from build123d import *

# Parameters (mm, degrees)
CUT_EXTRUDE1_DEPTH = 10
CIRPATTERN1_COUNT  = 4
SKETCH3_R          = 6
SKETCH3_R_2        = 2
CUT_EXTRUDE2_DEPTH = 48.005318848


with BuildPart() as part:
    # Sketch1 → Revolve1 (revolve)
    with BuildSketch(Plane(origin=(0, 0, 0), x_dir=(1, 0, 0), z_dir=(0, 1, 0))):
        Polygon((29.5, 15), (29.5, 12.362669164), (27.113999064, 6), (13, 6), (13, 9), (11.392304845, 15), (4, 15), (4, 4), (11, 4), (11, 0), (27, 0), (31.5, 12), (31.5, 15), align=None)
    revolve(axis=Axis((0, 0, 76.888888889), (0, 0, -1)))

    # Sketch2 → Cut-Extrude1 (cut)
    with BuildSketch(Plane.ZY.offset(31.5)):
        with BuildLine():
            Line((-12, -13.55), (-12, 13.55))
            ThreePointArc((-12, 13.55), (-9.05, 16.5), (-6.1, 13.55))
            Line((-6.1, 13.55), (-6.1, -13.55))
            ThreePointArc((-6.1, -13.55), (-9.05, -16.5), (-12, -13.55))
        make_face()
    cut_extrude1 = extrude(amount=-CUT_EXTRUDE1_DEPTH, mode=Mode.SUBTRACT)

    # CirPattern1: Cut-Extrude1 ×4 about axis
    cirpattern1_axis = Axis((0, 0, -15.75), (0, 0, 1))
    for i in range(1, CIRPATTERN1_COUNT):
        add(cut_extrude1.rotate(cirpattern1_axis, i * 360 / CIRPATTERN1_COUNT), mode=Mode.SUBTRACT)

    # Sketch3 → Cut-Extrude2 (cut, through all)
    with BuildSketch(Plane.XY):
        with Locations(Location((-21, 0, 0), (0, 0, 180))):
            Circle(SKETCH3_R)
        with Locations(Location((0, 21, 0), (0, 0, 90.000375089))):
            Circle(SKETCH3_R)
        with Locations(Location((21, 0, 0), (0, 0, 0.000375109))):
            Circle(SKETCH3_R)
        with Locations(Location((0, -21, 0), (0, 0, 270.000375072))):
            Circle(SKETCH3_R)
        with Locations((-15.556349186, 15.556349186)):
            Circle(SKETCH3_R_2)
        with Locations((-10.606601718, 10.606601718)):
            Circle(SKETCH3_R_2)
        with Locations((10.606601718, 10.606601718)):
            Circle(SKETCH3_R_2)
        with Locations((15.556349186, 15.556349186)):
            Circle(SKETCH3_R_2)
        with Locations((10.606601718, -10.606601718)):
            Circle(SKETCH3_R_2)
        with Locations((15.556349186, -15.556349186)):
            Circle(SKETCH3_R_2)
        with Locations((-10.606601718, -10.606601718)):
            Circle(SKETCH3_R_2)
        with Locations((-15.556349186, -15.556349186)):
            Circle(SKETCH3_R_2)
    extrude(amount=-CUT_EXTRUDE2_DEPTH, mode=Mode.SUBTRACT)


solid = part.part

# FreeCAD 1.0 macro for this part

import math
import FreeCAD as App
import Part
import Sketcher
Q = App.Units.Quantity


def add_polygon(sketch, points):
    """Adds a closed chain of lines whose ends are joined by coincident constraints."""
    first, n = sketch.GeometryCount, len(points)
    for a, b in zip(points, points[1:] + points[:1]):
        sketch.addGeometry(Part.LineSegment(App.Vector(*a, 0), App.Vector(*b, 0)), False)
    for i in range(n):
        sketch.addConstraint(Sketcher.Constraint("Coincident", first + i, 2, first + (i + 1) % n, 1))

doc = App.newDocument("Part")
params = doc.addObject("Spreadsheet::Sheet", "Params")
for row, (alias, value) in enumerate([
    ("sketch1_width", "7 mm"),
    ("sketch1_width2", "16 mm"),
    ("sketch1_width3", "2 mm"),
    ("sketch1_height", "3 mm"),
    ("sketch1_height2", "11 mm"),
    ("revolution_angle", "360 deg"),
    ("sketch2_radius", "2.95 mm"),
    ("sketch2_width", "27.1 mm"),
    ("pocket1_length", "10 mm"),
    ("sketch3_diameter", "12 mm"),
    ("sketch3_diameter2", "4 mm"),
], start=1):
    params.set(f"A{row}", alias)
    params.set(f"B{row}", "=" + value)
    params.setAlias(f"B{row}", alias)

body = doc.addObject("PartDesign::Body", "Body")

# Sketch on XZ plane
sketch1 = body.newObject("Sketcher::SketchObject", "Sketch")
sketch1.AttachmentSupport = (doc.getObject("XZ_Plane"), [""])
sketch1.MapMode = "FlatFace"
add_polygon(sketch1, [(29.5, -15), (29.5, -12.4), (27.1, -6), (13, -6), (13, -9), (11.4, -15), (4, -15), (4, -4), (11, -4), (11, 0), (27, 0), (31.5, -12), (31.5, -15)])  # lines 0-12
sketch1.addConstraint(Sketcher.Constraint("Vertical", 0))
sketch1.addConstraint(Sketcher.Constraint("Horizontal", 2))
sketch1.addConstraint(Sketcher.Constraint("Vertical", 3))
sketch1.addConstraint(Sketcher.Constraint("Horizontal", 5))
sketch1.addConstraint(Sketcher.Constraint("Vertical", 6))
sketch1.addConstraint(Sketcher.Constraint("Horizontal", 7))
sketch1.addConstraint(Sketcher.Constraint("Vertical", 8))
sketch1.addConstraint(Sketcher.Constraint("Horizontal", 9))
sketch1.addConstraint(Sketcher.Constraint("Vertical", 11))
sketch1.addConstraint(Sketcher.Constraint("Horizontal", 12))
sketch1.addConstraint(Sketcher.Constraint("PointOnObject", 8, 2, -1))
sketch1.addConstraint(Sketcher.Constraint("Parallel", 1, 10))
sketch1.addConstraint(Sketcher.Constraint("Horizontal", 5, 2, 11, 2))
sketch1.addConstraint(Sketcher.Constraint("Equal", 3, 11))
sketch1.addConstraint(Sketcher.Constraint("DistanceX", 7, 1, 7, 2, Q("7 mm")))
sketch1.addConstraint(Sketcher.Constraint("DistanceX", 9, 1, 9, 2, Q("16 mm")))
sketch1.addConstraint(Sketcher.Constraint("DistanceX", 12, 2, 12, 1, Q("2 mm")))
sketch1.addConstraint(Sketcher.Constraint("DistanceY", 3, 2, 3, 1, Q("3 mm")))
sketch1.addConstraint(Sketcher.Constraint("DistanceY", 6, 1, 6, 2, Q("11 mm")))
sketch1.addConstraint(Sketcher.Constraint("DistanceY", 8, 1, 8, 2, Q("4 mm")))
sketch1.addConstraint(Sketcher.Constraint("Angle", 4, Q("-105 deg")))
sketch1.addConstraint(Sketcher.Constraint("DistanceY", 1, 2, -1, 1, Q("6 mm")))
sketch1.addConstraint(Sketcher.Constraint("DistanceX", -1, 1, 2, 2, Q("13 mm")))
sketch1.addConstraint(Sketcher.Constraint("DistanceX", -1, 1, 5, 2, Q("4 mm")))
sketch1.addConstraint(Sketcher.Constraint("DistanceX", -1, 1, 0, 2, Q("29.5 mm")))
sketch1.addConstraint(Sketcher.Constraint("DistanceX", 2, 2, 2, 1, Q("14.113999 mm")))
sketch1.setExpression("Constraints[27]", "Params.sketch1_width")
sketch1.setExpression("Constraints[28]", "Params.sketch1_width2")
sketch1.setExpression("Constraints[29]", "Params.sketch1_width3")
sketch1.setExpression("Constraints[30]", "Params.sketch1_height")
sketch1.setExpression("Constraints[31]", "Params.sketch1_height2")
revolution = body.newObject("PartDesign::Revolution", "Revolution")
revolution.Profile = sketch1
revolution.ReferenceAxis = (sketch1, ["V_Axis"])
revolution.setExpression("Angle", "Params.revolution_angle")

# Sketch on YZ plane
sketch2 = body.newObject("Sketcher::SketchObject", "Sketch001")
sketch2.AttachmentSupport = (doc.getObject("YZ_Plane"), [""])
sketch2.MapMode = "FlatFace"
sketch2.AttachmentOffset = App.Placement(App.Vector(0, 0, -31.5), App.Rotation())
sketch2.addGeometry(Part.LineSegment(App.Vector(13.6, -12, 0), App.Vector(-13.6, -12, 0)), False)
sketch2.addGeometry(Part.ArcOfCircle(Part.Circle(App.Vector(-13.6, -9.1, 0), App.Vector(0, 0, 1), 3), math.radians(90), math.radians(270)), False)
sketch2.addGeometry(Part.LineSegment(App.Vector(-13.6, -6.1, 0), App.Vector(13.6, -6.1, 0)), False)
sketch2.addGeometry(Part.ArcOfCircle(Part.Circle(App.Vector(13.6, -9.1, 0), App.Vector(0, 0, 1), 3), math.radians(-90), math.radians(90)), False)
sketch2.addConstraint(Sketcher.Constraint("Tangent", 0, 2, 1, 2))
sketch2.addConstraint(Sketcher.Constraint("Tangent", 1, 1, 2, 1))
sketch2.addConstraint(Sketcher.Constraint("Tangent", 2, 2, 3, 2))
sketch2.addConstraint(Sketcher.Constraint("Tangent", 3, 1, 0, 1))
sketch2.addConstraint(Sketcher.Constraint("Horizontal", 0))
sketch2.addConstraint(Sketcher.Constraint("Horizontal", 2))
sketch2.addConstraint(Sketcher.Constraint("Radius", 1, Q("2.95 mm")))
sketch2.addConstraint(Sketcher.Constraint("DistanceX", 0, 2, 0, 1, Q("27.1 mm")))
sketch2.addConstraint(Sketcher.Constraint("DistanceY", 0, 2, -1, 1, Q("12 mm")))
sketch2.addConstraint(Sketcher.Constraint("DistanceX", 1, 3, -1, 1, Q("13.55 mm")))
sketch2.setExpression("Constraints[6]", "Params.sketch2_radius")
sketch2.setExpression("Constraints[7]", "Params.sketch2_width")
pocket1 = body.newObject("PartDesign::Pocket", "Pocket")
pocket1.Profile = sketch2
pocket1.setExpression("Length", "Params.pocket1_length")
pocket1.Reversed = True
doc.recompute()

polarpattern = body.newObject("PartDesign::PolarPattern", "PolarPattern")
polarpattern.Originals = [pocket1]
polarpattern.Axis = (doc.getObject("Z_Axis"), [""])
polarpattern.Angle = 360
polarpattern.Occurrences = 4
body.Tip = polarpattern

# Sketch on XY plane
sketch3 = body.newObject("Sketcher::SketchObject", "Sketch002")
sketch3.AttachmentSupport = (doc.getObject("XY_Plane"), [""])
sketch3.MapMode = "FlatFace"
sketch3.addGeometry(Part.Circle(App.Vector(-21, 0, 0), App.Vector(0, 0, 1), 6), False)
sketch3.addGeometry(Part.Circle(App.Vector(0, 21, 0), App.Vector(0, 0, 1), 6), False)
sketch3.addGeometry(Part.Circle(App.Vector(21, 0, 0), App.Vector(0, 0, 1), 6), False)
sketch3.addGeometry(Part.Circle(App.Vector(0, -21, 0), App.Vector(0, 0, 1), 6), False)
sketch3.addGeometry(Part.Circle(App.Vector(-15.6, 15.6, 0), App.Vector(0, 0, 1), 2), False)
sketch3.addGeometry(Part.Circle(App.Vector(-10.6, 10.6, 0), App.Vector(0, 0, 1), 2), False)
sketch3.addGeometry(Part.Circle(App.Vector(10.6, 10.6, 0), App.Vector(0, 0, 1), 2), False)
sketch3.addGeometry(Part.Circle(App.Vector(15.6, 15.6, 0), App.Vector(0, 0, 1), 2), False)
sketch3.addGeometry(Part.Circle(App.Vector(10.6, -10.6, 0), App.Vector(0, 0, 1), 2), False)
sketch3.addGeometry(Part.Circle(App.Vector(15.6, -15.6, 0), App.Vector(0, 0, 1), 2), False)
sketch3.addGeometry(Part.Circle(App.Vector(-10.6, -10.6, 0), App.Vector(0, 0, 1), 2), False)
sketch3.addGeometry(Part.Circle(App.Vector(-15.6, -15.6, 0), App.Vector(0, 0, 1), 2), False)
sketch3.addConstraint(Sketcher.Constraint("Equal", 0, 1))
sketch3.addConstraint(Sketcher.Constraint("Equal", 1, 2))
sketch3.addConstraint(Sketcher.Constraint("Equal", 2, 3))
sketch3.addConstraint(Sketcher.Constraint("Equal", 4, 5))
sketch3.addConstraint(Sketcher.Constraint("Equal", 5, 6))
sketch3.addConstraint(Sketcher.Constraint("Equal", 6, 7))
sketch3.addConstraint(Sketcher.Constraint("Equal", 7, 8))
sketch3.addConstraint(Sketcher.Constraint("Equal", 8, 9))
sketch3.addConstraint(Sketcher.Constraint("Equal", 9, 10))
sketch3.addConstraint(Sketcher.Constraint("Equal", 10, 11))
sketch3.addConstraint(Sketcher.Constraint("Symmetric", 0, 3, 2, 3, -1, 1))
sketch3.addConstraint(Sketcher.Constraint("Symmetric", 1, 3, 3, 3, -1, 1))
sketch3.addConstraint(Sketcher.Constraint("Symmetric", 5, 3, 8, 3, -1, 1))
sketch3.addConstraint(Sketcher.Constraint("Symmetric", 4, 3, 9, 3, -1, 1))
sketch3.addConstraint(Sketcher.Constraint("Symmetric", 6, 3, 10, 3, -1, 1))
sketch3.addConstraint(Sketcher.Constraint("Symmetric", 7, 3, 11, 3, -1, 1))
sketch3.addConstraint(Sketcher.Constraint("Symmetric", 5, 3, 6, 3, -2))
sketch3.addConstraint(Sketcher.Constraint("Symmetric", 4, 3, 7, 3, -2))
sketch3.addConstraint(Sketcher.Constraint("PointOnObject", 0, 3, -1))
sketch3.addConstraint(Sketcher.Constraint("PointOnObject", 1, 3, -2))
sketch3.addConstraint(Sketcher.Constraint("Diameter", 0, Q("12 mm")))
sketch3.addConstraint(Sketcher.Constraint("Diameter", 4, Q("4 mm")))
sketch3.addConstraint(Sketcher.Constraint("DistanceX", 0, 3, -1, 1, Q("21 mm")))
sketch3.addConstraint(Sketcher.Constraint("DistanceY", -1, 1, 1, 3, Q("21 mm")))
sketch3.addConstraint(Sketcher.Constraint("DistanceX", 5, 3, -1, 1, Q("10.606602 mm")))
sketch3.addConstraint(Sketcher.Constraint("DistanceY", -1, 1, 5, 3, Q("10.606602 mm")))
sketch3.addConstraint(Sketcher.Constraint("DistanceX", 4, 3, 7, 3, Q("31.112698 mm")))
sketch3.addConstraint(Sketcher.Constraint("DistanceY", 9, 3, 7, 3, Q("31.112698 mm")))
sketch3.setExpression("Constraints[20]", "Params.sketch3_diameter")
sketch3.setExpression("Constraints[21]", "Params.sketch3_diameter2")
pocket2 = body.newObject("PartDesign::Pocket", "Pocket001")
pocket2.Profile = sketch3
pocket2.Type = "ThroughAll"

doc.recompute()
